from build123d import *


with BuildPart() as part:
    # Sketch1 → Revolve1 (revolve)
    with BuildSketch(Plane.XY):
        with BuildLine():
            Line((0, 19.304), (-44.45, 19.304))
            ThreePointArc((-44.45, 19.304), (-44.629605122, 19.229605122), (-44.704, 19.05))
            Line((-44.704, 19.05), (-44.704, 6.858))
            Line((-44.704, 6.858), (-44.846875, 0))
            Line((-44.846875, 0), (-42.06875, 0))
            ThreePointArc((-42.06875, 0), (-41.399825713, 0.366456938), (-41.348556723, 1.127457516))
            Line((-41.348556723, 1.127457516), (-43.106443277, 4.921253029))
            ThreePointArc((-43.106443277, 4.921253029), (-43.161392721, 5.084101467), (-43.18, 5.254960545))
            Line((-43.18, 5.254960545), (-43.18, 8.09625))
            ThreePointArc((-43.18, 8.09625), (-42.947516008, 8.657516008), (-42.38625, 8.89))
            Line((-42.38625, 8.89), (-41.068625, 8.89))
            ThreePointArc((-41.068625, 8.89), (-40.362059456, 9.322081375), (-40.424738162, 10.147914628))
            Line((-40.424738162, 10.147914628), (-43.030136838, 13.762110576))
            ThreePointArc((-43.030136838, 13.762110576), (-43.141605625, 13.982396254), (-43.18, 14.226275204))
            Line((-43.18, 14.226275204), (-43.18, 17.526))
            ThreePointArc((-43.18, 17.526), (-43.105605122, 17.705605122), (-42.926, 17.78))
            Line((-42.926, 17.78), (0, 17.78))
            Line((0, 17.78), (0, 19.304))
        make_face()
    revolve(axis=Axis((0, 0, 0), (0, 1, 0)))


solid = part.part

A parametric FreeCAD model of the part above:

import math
import FreeCAD as App
import Part
import Sketcher
Q = App.Units.Quantity

doc = App.newDocument("Part")
body = doc.addObject("PartDesign::Body", "Body")

# Sketch on XY plane
sketch1 = body.newObject("Sketcher::SketchObject", "Sketch")
sketch1.AttachmentSupport = (doc.getObject("XY_Plane"), [""])
sketch1.MapMode = "FlatFace"
sketch1.addGeometry([
    Part.LineSegment(App.Vector(0, 19.3, 0), App.Vector(-44.45, 19.3, 0)),  # 0
    Part.ArcOfCircle(Part.Circle(App.Vector(-44.45, 19.05, 0), App.Vector(0, 0, 1), 0.25), math.radians(90), math.radians(180)),  # 1
    Part.LineSegment(App.Vector(-44.7, 19.05, 0), App.Vector(-44.7, 6.86, 0)),  # 2
    Part.LineSegment(App.Vector(-44.7, 6.86, 0), App.Vector(-44.85, 0, 0)),  # 3
    Part.LineSegment(App.Vector(-44.85, 0, 0), App.Vector(-42.07, 0, 0)),  # 4
    Part.ArcOfCircle(Part.Circle(App.Vector(-42.07, 0.79, 0), App.Vector(0, 0, 1), 0.79), math.radians(-90), math.radians(25)),  # 5
    Part.LineSegment(App.Vector(-41.35, 1.13, 0), App.Vector(-43.11, 4.92, 0)),  # 6
    Part.ArcOfCircle(Part.Circle(App.Vector(-42.39, 5.25, 0), App.Vector(0, 0, 1), 0.79), math.radians(180), math.radians(205)),  # 7
    Part.LineSegment(App.Vector(-43.18, 5.25, 0), App.Vector(-43.18, 8.1, 0)),  # 8
    Part.ArcOfCircle(Part.Circle(App.Vector(-42.39, 8.1, 0), App.Vector(0, 0, 1), 0.79), math.radians(90), math.radians(180)),  # 9
    Part.LineSegment(App.Vector(-42.39, 8.89, 0), App.Vector(-41.07, 8.89, 0)),  # 10
    Part.ArcOfCircle(Part.Circle(App.Vector(-41.07, 9.68, 0), App.Vector(0, 0, 1), 0.79), math.radians(-90), math.radians(36)),  # 11
    Part.LineSegment(App.Vector(-40.42, 10.15, 0), App.Vector(-43.03, 13.76, 0)),  # 12
    Part.ArcOfCircle(Part.Circle(App.Vector(-42.39, 14.23, 0), App.Vector(0, 0, 1), 0.79), math.radians(180), math.radians(216)),  # 13
    Part.LineSegment(App.Vector(-43.18, 14.23, 0), App.Vector(-43.18, 17.53, 0)),  # 14
    Part.ArcOfCircle(Part.Circle(App.Vector(-42.93, 17.53, 0), App.Vector(0, 0, 1), 0.25), math.radians(90), math.radians(180)),  # 15
    Part.LineSegment(App.Vector(-42.93, 17.78, 0), App.Vector(0, 17.78, 0)),  # 16
    Part.LineSegment(App.Vector(0, 17.78, 0), App.Vector(0, 19.3, 0)),  # 17
], False)
sketch1.addConstraint([
    Sketcher.Constraint("Tangent", 0, 2, 1, 1),
    Sketcher.Constraint("Tangent", 1, 2, 2, 1),
    Sketcher.Constraint("Coincident", 2, 2, 3, 1),
    Sketcher.Constraint("Coincident", 3, 2, 4, 1),
    Sketcher.Constraint("Tangent", 4, 2, 5, 1),
    Sketcher.Constraint("Tangent", 5, 2, 6, 1),
    Sketcher.Constraint("Tangent", 6, 2, 7, 2),
    Sketcher.Constraint("Tangent", 7, 1, 8, 1),
    Sketcher.Constraint("Tangent", 8, 2, 9, 2),
    Sketcher.Constraint("Tangent", 9, 1, 10, 1),
    Sketcher.Constraint("Tangent", 10, 2, 11, 1),
    Sketcher.Constraint("Tangent", 11, 2, 12, 1),
    Sketcher.Constraint("Tangent", 12, 2, 13, 2),
    Sketcher.Constraint("Tangent", 13, 1, 14, 1),
    Sketcher.Constraint("Tangent", 14, 2, 15, 2),
    Sketcher.Constraint("Tangent", 15, 1, 16, 1),
    Sketcher.Constraint("Coincident", 16, 2, 17, 1),
    Sketcher.Constraint("Coincident", 17, 2, 0, 1),
    Sketcher.Constraint("Horizontal", 0),
    Sketcher.Constraint("Vertical", 2),
    Sketcher.Constraint("Horizontal", 4),
    Sketcher.Constraint("Vertical", 8),
    Sketcher.Constraint("Horizontal", 10),
    Sketcher.Constraint("Vertical", 14),
    Sketcher.Constraint("Horizontal", 16),
    Sketcher.Constraint("Vertical", 17),
    Sketcher.Constraint("Equal", 5, 7),
    Sketcher.Constraint("Equal", 7, 9),
    Sketcher.Constraint("Equal", 9, 11),
    Sketcher.Constraint("Equal", 11, 13),
    Sketcher.Constraint("Equal", 1, 15),
    Sketcher.Constraint("PointOnObject", 3, 2, -1),
    Sketcher.Constraint("PointOnObject", 16, 2, -2),
    Sketcher.Constraint("Vertical", 9, 3, 13, 3),
    Sketcher.Constraint("Radius", 1, Q("0.01 in")),
    Sketcher.Constraint("Radius", 5, Q("0.03125 in")),
    Sketcher.Constraint("DistanceX", 0, 2, 0, 1, Q("1.75 in")),
    Sketcher.Constraint("DistanceX", 16, 1, 16, 2, Q("1.69 in")),
    Sketcher.Constraint("DistanceY", 2, 2, 2, 1, Q("0.48 in")),
    Sketcher.Constraint("DistanceY", 17, 1, 17, 2, Q("0.06 in")),
    Sketcher.Constraint("DistanceY", -1, 1, 15, 1, Q("0.7 in")),
    Sketcher.Constraint("DistanceX", 4, 1, 4, 2, Q("0.109375 in")),
    Sketcher.Constraint("DistanceY", -1, 1, 9, 1, Q("0.35 in")),
    Sketcher.Constraint("DistanceX", 5, 3, -1, 1, Q("1.65625 in")),
    Sketcher.Constraint("DistanceY", 6, 2, 9, 3, Q("0.1249999 in")),
    Sketcher.Constraint("DistanceX", 12, 2, -1, 1, Q("1.6940999 in")),
    Sketcher.Constraint("DistanceX", 12, 2, 11, 2, 2.605399),
])
revolution = body.newObject("PartDesign::Revolution", "Revolution")
revolution.Profile = sketch1
revolution.ReferenceAxis = (sketch1, ["V_Axis"])
revolution.Angle = 360

doc.recompute()
